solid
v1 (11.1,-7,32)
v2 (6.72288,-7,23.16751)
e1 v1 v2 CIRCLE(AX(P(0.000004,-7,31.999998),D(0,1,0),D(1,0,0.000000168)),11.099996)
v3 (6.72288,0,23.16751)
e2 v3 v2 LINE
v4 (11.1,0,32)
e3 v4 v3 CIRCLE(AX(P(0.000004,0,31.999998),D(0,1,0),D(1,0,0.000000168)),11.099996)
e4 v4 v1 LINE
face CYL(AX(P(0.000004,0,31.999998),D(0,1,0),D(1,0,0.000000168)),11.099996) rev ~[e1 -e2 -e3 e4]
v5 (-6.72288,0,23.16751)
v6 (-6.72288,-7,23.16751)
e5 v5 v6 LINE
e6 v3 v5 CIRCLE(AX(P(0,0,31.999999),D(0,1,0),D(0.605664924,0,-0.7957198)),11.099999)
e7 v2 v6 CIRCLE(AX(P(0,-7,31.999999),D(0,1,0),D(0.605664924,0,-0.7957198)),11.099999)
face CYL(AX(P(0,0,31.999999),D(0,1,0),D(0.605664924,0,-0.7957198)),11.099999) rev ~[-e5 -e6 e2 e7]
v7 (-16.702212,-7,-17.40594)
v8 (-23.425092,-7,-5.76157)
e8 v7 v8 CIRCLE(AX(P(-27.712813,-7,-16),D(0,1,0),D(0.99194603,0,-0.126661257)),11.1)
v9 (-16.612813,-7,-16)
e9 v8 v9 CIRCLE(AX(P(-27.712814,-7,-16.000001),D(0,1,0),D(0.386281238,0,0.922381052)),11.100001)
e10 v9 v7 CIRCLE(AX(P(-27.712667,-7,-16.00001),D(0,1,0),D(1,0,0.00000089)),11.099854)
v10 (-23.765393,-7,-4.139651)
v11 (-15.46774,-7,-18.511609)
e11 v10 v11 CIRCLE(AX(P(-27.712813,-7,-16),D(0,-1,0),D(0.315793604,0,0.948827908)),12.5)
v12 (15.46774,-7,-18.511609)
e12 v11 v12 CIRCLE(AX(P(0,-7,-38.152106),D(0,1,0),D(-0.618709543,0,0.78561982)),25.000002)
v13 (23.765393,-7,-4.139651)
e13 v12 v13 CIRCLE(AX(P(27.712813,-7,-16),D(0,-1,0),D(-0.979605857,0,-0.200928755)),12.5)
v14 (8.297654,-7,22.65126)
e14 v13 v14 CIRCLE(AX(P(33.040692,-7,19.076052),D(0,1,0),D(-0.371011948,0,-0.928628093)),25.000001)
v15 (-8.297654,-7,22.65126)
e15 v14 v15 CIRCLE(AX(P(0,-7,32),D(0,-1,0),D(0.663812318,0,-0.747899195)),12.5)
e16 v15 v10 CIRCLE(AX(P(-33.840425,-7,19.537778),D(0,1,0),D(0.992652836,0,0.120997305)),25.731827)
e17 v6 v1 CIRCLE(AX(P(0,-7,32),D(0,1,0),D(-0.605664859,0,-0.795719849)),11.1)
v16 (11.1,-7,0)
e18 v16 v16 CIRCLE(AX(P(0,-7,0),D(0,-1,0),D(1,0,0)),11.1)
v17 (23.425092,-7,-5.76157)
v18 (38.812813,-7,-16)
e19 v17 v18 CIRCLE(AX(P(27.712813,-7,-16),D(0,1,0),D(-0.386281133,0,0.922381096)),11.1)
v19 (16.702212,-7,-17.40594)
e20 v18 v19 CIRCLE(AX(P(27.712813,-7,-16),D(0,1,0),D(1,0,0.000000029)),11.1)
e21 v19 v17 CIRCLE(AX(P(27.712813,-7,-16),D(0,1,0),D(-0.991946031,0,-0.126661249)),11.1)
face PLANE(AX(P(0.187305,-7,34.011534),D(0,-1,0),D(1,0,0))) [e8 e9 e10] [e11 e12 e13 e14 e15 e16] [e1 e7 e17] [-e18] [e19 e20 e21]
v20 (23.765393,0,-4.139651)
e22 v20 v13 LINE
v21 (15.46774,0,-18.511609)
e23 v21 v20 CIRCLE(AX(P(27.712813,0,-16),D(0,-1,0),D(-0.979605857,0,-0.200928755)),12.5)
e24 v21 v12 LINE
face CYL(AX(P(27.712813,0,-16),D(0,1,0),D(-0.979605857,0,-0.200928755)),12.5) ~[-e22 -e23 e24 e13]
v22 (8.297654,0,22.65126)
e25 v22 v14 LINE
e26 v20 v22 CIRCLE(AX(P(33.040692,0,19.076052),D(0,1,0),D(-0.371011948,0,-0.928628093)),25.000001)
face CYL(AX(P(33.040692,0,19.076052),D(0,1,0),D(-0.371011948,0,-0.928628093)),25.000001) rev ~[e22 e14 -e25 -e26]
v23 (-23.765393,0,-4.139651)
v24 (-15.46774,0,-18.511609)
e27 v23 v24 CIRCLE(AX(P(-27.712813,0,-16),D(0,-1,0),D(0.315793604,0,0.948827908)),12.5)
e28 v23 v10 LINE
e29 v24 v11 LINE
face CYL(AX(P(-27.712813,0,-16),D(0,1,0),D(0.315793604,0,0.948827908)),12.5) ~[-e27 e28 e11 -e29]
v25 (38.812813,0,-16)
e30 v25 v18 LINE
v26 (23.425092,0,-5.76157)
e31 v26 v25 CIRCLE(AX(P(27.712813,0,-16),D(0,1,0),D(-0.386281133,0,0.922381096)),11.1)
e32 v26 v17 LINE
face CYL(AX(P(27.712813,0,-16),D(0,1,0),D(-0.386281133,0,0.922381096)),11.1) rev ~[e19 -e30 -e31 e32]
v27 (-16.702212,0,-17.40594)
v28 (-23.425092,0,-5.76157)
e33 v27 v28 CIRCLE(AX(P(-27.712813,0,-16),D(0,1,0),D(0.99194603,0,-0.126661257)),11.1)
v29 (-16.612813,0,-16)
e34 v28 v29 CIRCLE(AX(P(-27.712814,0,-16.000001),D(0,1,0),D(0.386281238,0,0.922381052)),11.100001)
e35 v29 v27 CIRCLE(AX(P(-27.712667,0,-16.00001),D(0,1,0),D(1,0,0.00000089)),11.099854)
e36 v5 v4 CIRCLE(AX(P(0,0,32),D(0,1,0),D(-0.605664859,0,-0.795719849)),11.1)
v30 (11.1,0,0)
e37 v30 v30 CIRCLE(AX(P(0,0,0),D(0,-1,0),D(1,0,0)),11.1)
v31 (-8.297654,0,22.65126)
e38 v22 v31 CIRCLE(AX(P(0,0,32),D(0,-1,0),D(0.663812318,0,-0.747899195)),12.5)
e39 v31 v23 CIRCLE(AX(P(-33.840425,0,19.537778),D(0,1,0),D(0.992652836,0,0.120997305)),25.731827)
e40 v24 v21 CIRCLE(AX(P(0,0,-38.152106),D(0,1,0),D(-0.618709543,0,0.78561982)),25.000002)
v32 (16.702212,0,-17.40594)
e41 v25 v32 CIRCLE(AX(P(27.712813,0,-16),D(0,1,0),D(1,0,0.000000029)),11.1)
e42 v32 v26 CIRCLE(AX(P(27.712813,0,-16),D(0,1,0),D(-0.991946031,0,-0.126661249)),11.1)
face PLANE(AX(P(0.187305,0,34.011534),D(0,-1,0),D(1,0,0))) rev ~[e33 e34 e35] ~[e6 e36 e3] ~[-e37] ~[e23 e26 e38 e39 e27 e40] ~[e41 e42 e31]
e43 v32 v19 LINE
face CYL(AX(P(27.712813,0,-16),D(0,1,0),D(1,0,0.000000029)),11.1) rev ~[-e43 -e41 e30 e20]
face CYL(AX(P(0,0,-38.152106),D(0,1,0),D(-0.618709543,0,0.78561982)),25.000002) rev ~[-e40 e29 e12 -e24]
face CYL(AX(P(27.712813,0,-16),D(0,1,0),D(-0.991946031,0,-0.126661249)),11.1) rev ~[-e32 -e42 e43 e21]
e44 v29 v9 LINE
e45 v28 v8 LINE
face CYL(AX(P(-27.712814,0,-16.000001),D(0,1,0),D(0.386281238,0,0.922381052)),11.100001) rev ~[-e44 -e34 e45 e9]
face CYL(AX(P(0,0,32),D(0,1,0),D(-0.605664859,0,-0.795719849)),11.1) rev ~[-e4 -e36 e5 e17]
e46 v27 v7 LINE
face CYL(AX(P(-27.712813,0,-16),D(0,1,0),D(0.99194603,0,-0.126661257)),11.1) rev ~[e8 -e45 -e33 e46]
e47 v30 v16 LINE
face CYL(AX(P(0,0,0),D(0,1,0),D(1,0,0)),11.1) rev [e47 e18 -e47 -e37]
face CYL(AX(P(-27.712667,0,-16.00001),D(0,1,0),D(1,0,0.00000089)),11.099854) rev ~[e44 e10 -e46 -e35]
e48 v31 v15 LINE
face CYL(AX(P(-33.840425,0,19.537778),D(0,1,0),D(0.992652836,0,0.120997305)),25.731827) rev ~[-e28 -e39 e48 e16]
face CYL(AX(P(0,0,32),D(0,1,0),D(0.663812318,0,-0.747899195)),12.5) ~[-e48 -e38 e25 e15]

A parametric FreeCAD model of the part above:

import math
import FreeCAD as App
import Part
import Sketcher
from FreeCAD import Vector

doc = App.newDocument("Part")
body = doc.addObject("PartDesign::Body", "Body")

# Sketch on XZ plane
sketch1 = doc.addObject("Sketcher::SketchObject", "Sketch")
body.addObject(sketch1)
sketch1.AttachmentSupport = (doc.XZ_Plane, [""])
sketch1.MapMode = "FlatFace"
sketch1.addGeometry([
    Part.ArcOfCircle(Part.Circle(Vector(0, 32, 0), Vector(0, 0, 1), 12.5), math.radians(-48.408726), math.radians(228.408726)),  # 0
    Part.ArcOfCircle(Part.Circle(Vector(-33.840425, 19.537778, 0), Vector(0, 0, 1), 25.731827), math.radians(-66.949661), math.radians(6.949663)),  # 1
    Part.ArcOfCircle(Part.Circle(Vector(-27.712813, -16, 0), Vector(0, 0, 1), 12.5), math.radians(71.59127), math.radians(348.408725)),  # 2
    Part.ArcOfCircle(Part.Circle(Vector(0, -38.152106, 0), Vector(0, 0, 1), 25.000002), math.radians(51.77804), math.radians(128.22196)),  # 3
    Part.ArcOfCircle(Part.Circle(Vector(27.712813, -16, 0), Vector(0, 0, 1), 12.5), math.radians(-168.408725), math.radians(108.40873)),  # 4
    Part.ArcOfCircle(Part.Circle(Vector(33.040692, 19.076052, 0), Vector(0, 0, 1), 25.000001), math.radians(171.778038), math.radians(248.22196)),  # 5
    Part.ArcOfCircle(Part.Circle(Vector(27.712813, -16, 0), Vector(0, 0, 1), 11.1), math.radians(112.7233), math.radians(187.276701)),  # 6
    Part.ArcOfCircle(Part.Circle(Vector(27.712813, -16, 0), Vector(0, 0, 1), 11.1), math.radians(0.000002), math.radians(112.723298)),  # 7
    Part.ArcOfCircle(Part.Circle(Vector(27.712813, -16, 0), Vector(0, 0, 1), 11.1), math.radians(-172.7233), math.radians(0.000002)),  # 8
    Part.ArcOfCircle(Part.Circle(Vector(-27.712814, -16.000001, 0), Vector(0, 0, 1), 11.100001), math.radians(0.000004), math.radians(67.276696)),  # 9
    Part.ArcOfCircle(Part.Circle(Vector(-27.712667, -16.00001, 0), Vector(0, 0, 1), 11.099854), math.radians(-7.276746), math.radians(0.000051)),  # 10
    Part.ArcOfCircle(Part.Circle(Vector(-27.712813, -16, 0), Vector(0, 0, 1), 11.1), math.radians(67.2767), math.radians(352.723299)),  # 11
    Part.Circle(Vector(0, 0, 0), Vector(0, 0, 1), 11.1),  # 12
    Part.ArcOfCircle(Part.Circle(Vector(0, 32, 0), Vector(0, 0, 1), 11.1), math.radians(-0.000002), math.radians(232.7233)),  # 13
    Part.ArcOfCircle(Part.Circle(Vector(0.000004, 31.999998, 0), Vector(0, 0, 1), 11.099996), math.radians(-52.723311), math.radians(0.00001)),  # 14
    Part.ArcOfCircle(Part.Circle(Vector(0, 31.999999, 0), Vector(0, 0, 1), 11.099999), math.radians(-127.276704), math.radians(-52.723296)),  # 15
], False)
sketch1.addConstraint([
    Sketcher.Constraint("Coincident", 0, 2, 1, 2),
    Sketcher.Constraint("Coincident", 1, 1, 2, 1),
    Sketcher.Constraint("Coincident", 2, 2, 3, 2),
    Sketcher.Constraint("Coincident", 3, 1, 4, 1),
    Sketcher.Constraint("Coincident", 4, 2, 5, 2),
    Sketcher.Constraint("Coincident", 5, 1, 0, 1),
    Sketcher.Constraint("Coincident", 6, 1, 7, 2),
    Sketcher.Constraint("Coincident", 7, 1, 8, 2),
    Sketcher.Constraint("Coincident", 8, 1, 6, 2),
    Sketcher.Constraint("Coincident", 9, 1, 10, 2),
    Sketcher.Constraint("Coincident", 10, 1, 11, 2),
    Sketcher.Constraint("Coincident", 11, 1, 9, 2),
    Sketcher.Constraint("Coincident", 13, 1, 14, 2),
    Sketcher.Constraint("Coincident", 14, 1, 15, 2),
    Sketcher.Constraint("Coincident", 15, 1, 13, 2),
    Sketcher.Constraint("Coincident", 12, 3, -1, 1),
    Sketcher.Constraint("Coincident", 6, 3, 4, 3),
    Sketcher.Constraint("Coincident", 7, 3, 4, 3),
    Sketcher.Constraint("Coincident", 9, 3, 2, 3),
    Sketcher.Constraint("Coincident", 11, 3, 2, 3),
    Sketcher.Constraint("Coincident", 13, 3, 0, 3),
    Sketcher.Constraint("Coincident", 14, 3, 0, 3),
    Sketcher.Constraint("PointOnObject", 0, 3, -2),
    Sketcher.Constraint("PointOnObject", 3, 3, -2),
    Sketcher.Constraint("Radius", 5, 25.000001),
    Sketcher.Constraint("Diameter", 12, 22.2),
    Sketcher.Constraint("Radius", 0, 12.5),
    Sketcher.Constraint("Radius", 2, 12.5),
    Sketcher.Constraint("Radius", 4, 12.5),
    Sketcher.Constraint("Radius", 6, 11.1),
    Sketcher.Constraint("Radius", 8, 11.1),
    Sketcher.Constraint("Radius", 9, 11.100001),
    Sketcher.Constraint("Radius", 13, 11.1),
    Sketcher.Constraint("Radius", 15, 11.099999),
    Sketcher.Constraint("DistanceY", -1, 1, 0, 3, 32.0),
    Sketcher.Constraint("DistanceY", 2, 3, -1, 1, 16.0),
    Sketcher.Constraint("DistanceY", 4, 3, -1, 1, 16.0),
    Sketcher.Constraint("DistanceY", 7, 1, -1, 1, 16.0),
    Sketcher.Constraint("DistanceY", 9, 1, -1, 1, 16.0),
    Sketcher.Constraint("DistanceY", -1, 1, 13, 1, 32.0),
    Sketcher.Constraint("Radius", 1, 25.731827),
    Sketcher.Constraint("Radius", 3, 25.000002),
    Sketcher.Constraint("Radius", 10, 11.099854),
    Sketcher.Constraint("DistanceY", 2, 2, 10, 3, 2.511599),
    Sketcher.Constraint("DistanceX", 6, 1, 4, 2, 0.340301),
    Sketcher.Constraint("DistanceX", 8, 1, 7, 3, 11.010601),
    Sketcher.Constraint("DistanceX", 10, 1, 9, 1, 0.089399),
    Sketcher.Constraint("DistanceX", 1, 1, 11, 1, 0.340301),
    Sketcher.Constraint("DistanceY", -1, 1, 1, 3, 19.537778),
    Sketcher.Constraint("DistanceX", -1, 1, 5, 3, 33.040692),
    Sketcher.Constraint("DistanceY", -1, 1, 0, 2, 22.65126),
    Sketcher.Constraint("DistanceY", 1, 1, -1, 1, 4.139651),
    Sketcher.Constraint("DistanceX", -1, 1, 3, 1, 15.46774),
    Sketcher.Constraint("DistanceY", 4, 2, -1, 1, 4.139651),
    Sketcher.Constraint("DistanceX", -1, 1, 14, 1, 6.72288),
    Sketcher.Constraint("DistanceX", 15, 1, -1, 1, 6.72288),
])
pad1 = doc.addObject("PartDesign::Pad", "Pad")
body.addObject(pad1)
pad1.Profile = sketch1
pad1.Length = 7

doc.recompute()
